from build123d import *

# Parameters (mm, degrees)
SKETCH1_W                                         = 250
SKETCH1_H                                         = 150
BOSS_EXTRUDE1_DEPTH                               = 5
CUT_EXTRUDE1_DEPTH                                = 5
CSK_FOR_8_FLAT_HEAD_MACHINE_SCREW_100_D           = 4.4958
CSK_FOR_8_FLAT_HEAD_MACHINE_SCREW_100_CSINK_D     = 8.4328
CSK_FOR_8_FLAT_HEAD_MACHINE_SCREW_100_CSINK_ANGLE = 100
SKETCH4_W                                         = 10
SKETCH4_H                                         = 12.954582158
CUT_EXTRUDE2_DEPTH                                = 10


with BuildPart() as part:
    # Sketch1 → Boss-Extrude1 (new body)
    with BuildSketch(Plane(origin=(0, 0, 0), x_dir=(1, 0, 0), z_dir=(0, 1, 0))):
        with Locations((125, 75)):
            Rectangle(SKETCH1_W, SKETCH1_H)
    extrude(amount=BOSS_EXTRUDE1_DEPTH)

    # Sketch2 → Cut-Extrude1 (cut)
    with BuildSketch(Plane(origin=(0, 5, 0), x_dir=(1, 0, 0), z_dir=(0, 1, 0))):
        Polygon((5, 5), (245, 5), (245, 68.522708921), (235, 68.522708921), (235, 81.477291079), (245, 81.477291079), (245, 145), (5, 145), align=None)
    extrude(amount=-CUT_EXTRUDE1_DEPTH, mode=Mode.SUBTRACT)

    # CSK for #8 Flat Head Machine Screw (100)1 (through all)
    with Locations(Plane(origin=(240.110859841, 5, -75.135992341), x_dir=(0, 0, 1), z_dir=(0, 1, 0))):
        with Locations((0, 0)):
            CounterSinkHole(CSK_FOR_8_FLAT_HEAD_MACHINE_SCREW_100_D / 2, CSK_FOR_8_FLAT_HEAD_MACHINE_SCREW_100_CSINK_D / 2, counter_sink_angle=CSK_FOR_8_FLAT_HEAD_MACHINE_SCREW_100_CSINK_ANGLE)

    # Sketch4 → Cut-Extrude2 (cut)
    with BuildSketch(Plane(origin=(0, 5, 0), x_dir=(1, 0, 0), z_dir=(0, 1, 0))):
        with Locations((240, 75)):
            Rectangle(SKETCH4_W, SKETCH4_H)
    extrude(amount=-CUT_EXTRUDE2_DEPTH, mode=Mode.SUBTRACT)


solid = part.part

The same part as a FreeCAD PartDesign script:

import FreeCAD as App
import Part
import Sketcher

V = App.Vector


def add_polygon(sketch, points):
    """Adds a closed chain of lines whose ends are joined by coincident constraints."""
    first, n = sketch.GeometryCount, len(points)
    for a, b in zip(points, points[1:] + points[:1]):
        sketch.addGeometry(Part.LineSegment(App.Vector(*a, 0), App.Vector(*b, 0)), False)
    for i in range(n):
        sketch.addConstraint(Sketcher.Constraint("Coincident", first + i, 2, first + (i + 1) % n, 1))

doc = App.newDocument("Part")
body = doc.addObject("PartDesign::Body", "Body")

# Sketch on XZ plane
sketch1 = body.newObject("Sketcher::SketchObject", "Sketch")
sketch1.AttachmentSupport = (doc.getObject("XZ_Plane"), [""])
sketch1.MapMode = "FlatFace"
add_polygon(sketch1, [(0, -150), (0, 0), (250, 0), (250, -150)])  # lines 0-3
sketch1.addConstraint([
    Sketcher.Constraint("Vertical", 0),
    Sketcher.Constraint("Horizontal", 1),
    Sketcher.Constraint("Vertical", 2),
    Sketcher.Constraint("Horizontal", 3),
    Sketcher.Constraint("Coincident", 0, 2, -1, 1),
    Sketcher.Constraint("DistanceX", 1, 1, 1, 2, 250.0),
    Sketcher.Constraint("DistanceY", 0, 1, 0, 2, 150.0),
])
pad1 = body.newObject("PartDesign::Pad", "Pad")
pad1.Profile = sketch1
pad1.Length = 5
pad1.Reversed = True

# Sketch on XZ plane
sketch2 = body.newObject("Sketcher::SketchObject", "Sketch001")
sketch2.AttachmentSupport = (doc.getObject("XZ_Plane"), [""])
sketch2.MapMode = "FlatFace"
sketch2.AttachmentOffset = App.Placement(V(0, 0, -5), App.Rotation())
add_polygon(sketch2, [(5, -5), (245, -5), (245, -69), (235, -69), (235, -81), (245, -81), (245, -145), (5, -145)])  # lines 0-7
sketch2.addConstraint([
    Sketcher.Constraint("Horizontal", 0),
    Sketcher.Constraint("Vertical", 1),
    Sketcher.Constraint("Horizontal", 2),
    Sketcher.Constraint("Vertical", 3),
    Sketcher.Constraint("Horizontal", 4),
    Sketcher.Constraint("Vertical", 5),
    Sketcher.Constraint("Horizontal", 6),
    Sketcher.Constraint("Vertical", 7),
    Sketcher.Constraint("Vertical", 1, 2, 4, 2),
    Sketcher.Constraint("Equal", 1, 5),
    Sketcher.Constraint("DistanceX", 0, 1, 0, 2, 240.0),
    Sketcher.Constraint("DistanceX", 2, 2, 2, 1, 10.0),
    Sketcher.Constraint("DistanceY", 7, 1, 7, 2, 140.0),
    Sketcher.Constraint("DistanceX", -1, 1, 0, 2, 245.0),
    Sketcher.Constraint("DistanceY", 0, 2, -1, 1, 5.0),
    Sketcher.Constraint("DistanceY", 1, 2, 1, 1, 63.522709),
])
pocket1 = body.newObject("PartDesign::Pocket", "Pocket")
pocket1.Profile = sketch2
pocket1.Length = 5
pocket1.Reversed = True

# Sketch on XZ plane
sketch3 = body.newObject("Sketcher::SketchObject", "Sketch002")
sketch3.AttachmentSupport = (doc.getObject("XZ_Plane"), [""])
sketch3.MapMode = "FlatFace"
sketch3.AttachmentOffset = App.Placement(V(0, 0, -5), App.Rotation())
sketch3.addGeometry(Part.Circle(V(240.1, -75.1, 0), V(0, 0, 1), 2.2), False)
sketch3.addConstraint([
    Sketcher.Constraint("Diameter", 0, 4.4958),
    Sketcher.Constraint("DistanceX", -1, 1, 0, 3, 240.11086),
    Sketcher.Constraint("DistanceY", 0, 3, -1, 1, 75.135992),
])
doc.recompute()
hole = body.newObject("PartDesign::Hole", "Hole")
hole.Profile = sketch3
hole.ThreadType = "None"
hole.Diameter = 4.4958
hole.DepthType = "ThroughAll"
hole.HoleCutType = "Countersink"
hole.HoleCutDiameter = 8.4328
hole.HoleCutCountersinkAngle = 100
hole.Reversed = True

# Sketch on XZ plane
sketch4 = body.newObject("Sketcher::SketchObject", "Sketch003")
sketch4.AttachmentSupport = (doc.getObject("XZ_Plane"), [""])
sketch4.MapMode = "FlatFace"
sketch4.AttachmentOffset = App.Placement(V(0, 0, -5), App.Rotation())
add_polygon(sketch4, [(235, -81), (235, -69), (245, -69), (245, -81)])  # lines 0-3
sketch4.addConstraint([
    Sketcher.Constraint("Vertical", 0),
    Sketcher.Constraint("Horizontal", 1),
    Sketcher.Constraint("Vertical", 2),
    Sketcher.Constraint("Horizontal", 3),
    Sketcher.Constraint("DistanceX", 1, 1, 1, 2, 10.0),
    Sketcher.Constraint("DistanceX", -1, 1, 0, 2, 235.0),
    Sketcher.Constraint("DistanceY", 0, 1, 0, 2, 12.954582),
    Sketcher.Constraint("DistanceY", 0, 2, -1, 1, 68.522709),
])
pocket2 = body.newObject("PartDesign::Pocket", "Pocket001")
pocket2.Profile = sketch4
pocket2.Length = 10
pocket2.Reversed = True

doc.recompute()
